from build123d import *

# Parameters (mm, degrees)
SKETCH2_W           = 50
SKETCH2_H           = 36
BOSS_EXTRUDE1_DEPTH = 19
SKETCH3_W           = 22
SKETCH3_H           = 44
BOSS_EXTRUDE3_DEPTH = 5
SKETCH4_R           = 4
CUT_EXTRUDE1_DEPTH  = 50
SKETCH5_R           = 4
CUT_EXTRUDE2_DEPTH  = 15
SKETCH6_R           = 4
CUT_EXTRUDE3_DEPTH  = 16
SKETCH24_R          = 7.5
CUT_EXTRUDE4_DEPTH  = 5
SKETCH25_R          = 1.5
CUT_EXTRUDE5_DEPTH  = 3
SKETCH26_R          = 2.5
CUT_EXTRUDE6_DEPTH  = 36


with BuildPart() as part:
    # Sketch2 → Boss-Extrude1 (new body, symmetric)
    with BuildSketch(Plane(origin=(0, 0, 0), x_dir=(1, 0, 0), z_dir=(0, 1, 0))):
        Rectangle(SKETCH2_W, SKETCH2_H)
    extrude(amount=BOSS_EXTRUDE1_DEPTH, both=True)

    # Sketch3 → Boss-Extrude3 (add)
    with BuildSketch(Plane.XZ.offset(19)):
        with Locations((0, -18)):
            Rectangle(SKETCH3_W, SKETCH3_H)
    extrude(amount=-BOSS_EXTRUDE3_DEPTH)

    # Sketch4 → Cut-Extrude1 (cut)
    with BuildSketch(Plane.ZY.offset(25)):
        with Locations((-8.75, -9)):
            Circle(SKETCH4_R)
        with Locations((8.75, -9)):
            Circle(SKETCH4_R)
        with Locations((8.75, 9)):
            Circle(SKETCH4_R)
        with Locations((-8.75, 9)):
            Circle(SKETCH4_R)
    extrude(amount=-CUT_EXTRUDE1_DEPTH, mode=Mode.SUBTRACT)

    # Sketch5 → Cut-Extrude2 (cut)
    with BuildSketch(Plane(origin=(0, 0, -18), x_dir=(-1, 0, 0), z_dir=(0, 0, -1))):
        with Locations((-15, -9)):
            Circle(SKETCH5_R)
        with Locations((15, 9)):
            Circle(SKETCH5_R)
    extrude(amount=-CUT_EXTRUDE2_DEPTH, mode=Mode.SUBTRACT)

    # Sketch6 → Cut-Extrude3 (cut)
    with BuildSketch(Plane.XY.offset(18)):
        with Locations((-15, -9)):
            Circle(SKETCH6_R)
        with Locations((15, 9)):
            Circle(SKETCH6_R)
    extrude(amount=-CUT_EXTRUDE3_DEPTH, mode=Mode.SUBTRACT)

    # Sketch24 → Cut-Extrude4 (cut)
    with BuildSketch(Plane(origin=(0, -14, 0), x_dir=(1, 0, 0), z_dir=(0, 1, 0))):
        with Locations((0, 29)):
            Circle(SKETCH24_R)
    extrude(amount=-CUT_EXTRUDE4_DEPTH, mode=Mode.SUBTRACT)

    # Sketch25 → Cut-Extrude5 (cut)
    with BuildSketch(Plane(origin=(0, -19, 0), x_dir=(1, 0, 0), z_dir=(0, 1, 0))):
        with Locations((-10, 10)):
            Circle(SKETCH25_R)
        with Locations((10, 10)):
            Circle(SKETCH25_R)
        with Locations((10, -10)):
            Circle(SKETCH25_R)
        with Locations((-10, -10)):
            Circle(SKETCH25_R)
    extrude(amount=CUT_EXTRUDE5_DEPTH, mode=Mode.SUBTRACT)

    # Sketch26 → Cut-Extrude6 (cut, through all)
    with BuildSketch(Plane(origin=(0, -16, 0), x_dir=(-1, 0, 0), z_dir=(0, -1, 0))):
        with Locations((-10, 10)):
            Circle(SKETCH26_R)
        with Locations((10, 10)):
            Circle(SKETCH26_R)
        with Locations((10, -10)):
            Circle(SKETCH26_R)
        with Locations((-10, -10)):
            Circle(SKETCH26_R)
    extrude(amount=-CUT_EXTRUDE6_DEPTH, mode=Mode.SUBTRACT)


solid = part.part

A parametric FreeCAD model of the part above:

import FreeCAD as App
import Part
import Sketcher
from FreeCAD import Vector
Q = App.Units.Quantity


def add_polygon(sketch, points):
    """Adds a closed chain of lines whose ends are joined by coincident constraints."""
    first, n = sketch.GeometryCount, len(points)
    for a, b in zip(points, points[1:] + points[:1]):
        sketch.addGeometry(Part.LineSegment(App.Vector(*a, 0), App.Vector(*b, 0)), False)
    for i in range(n):
        sketch.addConstraint(Sketcher.Constraint("Coincident", first + i, 2, first + (i + 1) % n, 1))

doc = App.newDocument("Part")
body = doc.addObject("PartDesign::Body", "Body")

# Sketch on XZ plane
sketch1 = body.newObject("Sketcher::SketchObject", "Sketch")
sketch1.AttachmentSupport = (doc.getObject("XZ_Plane"), [""])
sketch1.MapMode = "FlatFace"
add_polygon(sketch1, [(-25, -18), (-25, 18), (25, 18), (25, -18)])  # lines 0-3
sketch1.addConstraint([
    Sketcher.Constraint("Vertical", 0),
    Sketcher.Constraint("Horizontal", 1),
    Sketcher.Constraint("Vertical", 2),
    Sketcher.Constraint("Horizontal", 3),
    Sketcher.Constraint("Symmetric", 0, 2, 2, 2, -1, 1),
    Sketcher.Constraint("DistanceX", 1, 1, 1, 2, Q("50 mm")),
    Sketcher.Constraint("DistanceY", 0, 1, 0, 2, Q("36 mm")),
])
pad1 = body.newObject("PartDesign::Pad", "Pad")
pad1.Profile = sketch1
pad1.Length = 38
pad1.Midplane = True

# Sketch on XZ plane
sketch2 = body.newObject("Sketcher::SketchObject", "Sketch001")
sketch2.AttachmentSupport = (doc.getObject("XZ_Plane"), [""])
sketch2.MapMode = "FlatFace"
sketch2.AttachmentOffset = App.Placement(Vector(0, 0, 19), App.Rotation())
add_polygon(sketch2, [(-11, 4), (-11, -40), (11, -40), (11, 4)])  # lines 0-3
sketch2.addConstraint([
    Sketcher.Constraint("Vertical", 0),
    Sketcher.Constraint("Horizontal", 1),
    Sketcher.Constraint("Vertical", 2),
    Sketcher.Constraint("Horizontal", 3),
    Sketcher.Constraint("DistanceX", 1, 1, 1, 2, Q("22 mm")),
    Sketcher.Constraint("DistanceY", 0, 2, 0, 1, Q("44 mm")),
    Sketcher.Constraint("DistanceX", 0, 2, -1, 1, Q("11 mm")),
    Sketcher.Constraint("DistanceY", 0, 2, -1, 1, Q("40 mm")),
])
pad2 = body.newObject("PartDesign::Pad", "Pad001")
pad2.Profile = sketch2
pad2.Length = 5
pad2.Reversed = True

# Sketch on YZ plane
sketch3 = body.newObject("Sketcher::SketchObject", "Sketch002")
sketch3.AttachmentSupport = (doc.getObject("YZ_Plane"), [""])
sketch3.MapMode = "FlatFace"
sketch3.AttachmentOffset = App.Placement(Vector(0, 0, -25), App.Rotation())
sketch3.addGeometry([
    Part.Circle(Vector(-9, -8.8, 0), Vector(0, 0, 1), 4),
    Part.Circle(Vector(-9, 8.8, 0), Vector(0, 0, 1), 4),
    Part.Circle(Vector(9, 8.8, 0), Vector(0, 0, 1), 4),
    Part.Circle(Vector(9, -8.8, 0), Vector(0, 0, 1), 4),
], False)
sketch3.addConstraint([
    Sketcher.Constraint("Equal", 0, 1),
    Sketcher.Constraint("Equal", 1, 2),
    Sketcher.Constraint("Equal", 2, 3),
    Sketcher.Constraint("Symmetric", 0, 3, 2, 3, -1, 1),
    Sketcher.Constraint("Symmetric", 1, 3, 3, 3, -1, 1),
    Sketcher.Constraint("Symmetric", 1, 3, 2, 3, -2),
    Sketcher.Constraint("Diameter", 0, Q("8 mm")),
    Sketcher.Constraint("DistanceX", 0, 3, -1, 1, Q("9 mm")),
    Sketcher.Constraint("DistanceY", 0, 3, 1, 3, Q("17.5 mm")),
])
pocket1 = body.newObject("PartDesign::Pocket", "Pocket")
pocket1.Profile = sketch3
pocket1.Length = 50
pocket1.Reversed = True

# Sketch on XY plane
sketch4 = body.newObject("Sketcher::SketchObject", "Sketch003")
sketch4.AttachmentSupport = (doc.getObject("XY_Plane"), [""])
sketch4.MapMode = "FlatFace"
sketch4.AttachmentOffset = App.Placement(Vector(0, 0, -18), App.Rotation())
sketch4.addGeometry([
    Part.Circle(Vector(15, -9, 0), Vector(0, 0, 1), 4),
    Part.Circle(Vector(-15, 9, 0), Vector(0, 0, 1), 4),
], False)
sketch4.addConstraint([
    Sketcher.Constraint("Equal", 0, 1),
    Sketcher.Constraint("Symmetric", 0, 3, 1, 3, -1, 1),
    Sketcher.Constraint("Diameter", 0, Q("8 mm")),
    Sketcher.Constraint("DistanceX", -1, 1, 0, 3, Q("15 mm")),
    Sketcher.Constraint("DistanceY", 0, 3, -1, 1, Q("9 mm")),
])
pocket2 = body.newObject("PartDesign::Pocket", "Pocket001")
pocket2.Profile = sketch4
pocket2.Length = 15
pocket2.Reversed = True

# Sketch on XY plane
sketch5 = body.newObject("Sketcher::SketchObject", "Sketch004")
sketch5.AttachmentSupport = (doc.getObject("XY_Plane"), [""])
sketch5.MapMode = "FlatFace"
sketch5.AttachmentOffset = App.Placement(Vector(0, 0, 18), App.Rotation())
sketch5.addGeometry([
    Part.Circle(Vector(-15, -9, 0), Vector(0, 0, 1), 4),
    Part.Circle(Vector(15, 9, 0), Vector(0, 0, 1), 4),
], False)
sketch5.addConstraint([
    Sketcher.Constraint("Equal", 0, 1),
    Sketcher.Constraint("Symmetric", 0, 3, 1, 3, -1, 1),
    Sketcher.Constraint("Diameter", 0, Q("8 mm")),
    Sketcher.Constraint("DistanceX", 0, 3, -1, 1, Q("15 mm")),
    Sketcher.Constraint("DistanceY", 0, 3, -1, 1, Q("9 mm")),
])
pocket3 = body.newObject("PartDesign::Pocket", "Pocket002")
pocket3.Profile = sketch5
pocket3.Length = 16

# Sketch on XZ plane
sketch6 = body.newObject("Sketcher::SketchObject", "Sketch005")
sketch6.AttachmentSupport = (doc.getObject("XZ_Plane"), [""])
sketch6.MapMode = "FlatFace"
sketch6.AttachmentOffset = App.Placement(Vector(0, 0, 14), App.Rotation())
sketch6.addGeometry(Part.Circle(Vector(0, -29, 0), Vector(0, 0, 1), 8), False)
sketch6.addConstraint([
    Sketcher.Constraint("PointOnObject", 0, 3, -2),
    Sketcher.Constraint("Diameter", 0, Q("15 mm")),
    Sketcher.Constraint("DistanceY", 0, 3, -1, 1, Q("29 mm")),
])
pocket4 = body.newObject("PartDesign::Pocket", "Pocket003")
pocket4.Profile = sketch6
pocket4.Length = 5
pocket4.Reversed = True

# Sketch on XZ plane
sketch7 = body.newObject("Sketcher::SketchObject", "Sketch006")
sketch7.AttachmentSupport = (doc.getObject("XZ_Plane"), [""])
sketch7.MapMode = "FlatFace"
sketch7.AttachmentOffset = App.Placement(Vector(0, 0, 19), App.Rotation())
sketch7.addGeometry([
    Part.Circle(Vector(-10, -10, 0), Vector(0, 0, 1), 1.5),
    Part.Circle(Vector(10, -10, 0), Vector(0, 0, 1), 1.5),
    Part.Circle(Vector(10, 10, 0), Vector(0, 0, 1), 1.5),
    Part.Circle(Vector(-10, 10, 0), Vector(0, 0, 1), 1.5),
], False)
sketch7.addConstraint([
    Sketcher.Constraint("Equal", 0, 1),
    Sketcher.Constraint("Equal", 1, 2),
    Sketcher.Constraint("Equal", 2, 3),
    Sketcher.Constraint("Symmetric", 0, 3, 2, 3, -1, 1),
    Sketcher.Constraint("Symmetric", 1, 3, 3, 3, -1, 1),
    Sketcher.Constraint("Symmetric", 0, 3, 1, 3, -2),
    Sketcher.Constraint("Diameter", 0, Q("3 mm")),
    Sketcher.Constraint("DistanceX", 0, 3, -1, 1, Q("10 mm")),
    Sketcher.Constraint("DistanceY", 0, 3, -1, 1, Q("10 mm")),
])
pocket5 = body.newObject("PartDesign::Pocket", "Pocket004")
pocket5.Profile = sketch7
pocket5.Length = 3

# Sketch on XZ plane
sketch8 = body.newObject("Sketcher::SketchObject", "Sketch007")
sketch8.AttachmentSupport = (doc.getObject("XZ_Plane"), [""])
sketch8.MapMode = "FlatFace"
sketch8.AttachmentOffset = App.Placement(Vector(0, 0, 16), App.Rotation())
sketch8.addGeometry([
    Part.Circle(Vector(10, -10, 0), Vector(0, 0, 1), 2.5),
    Part.Circle(Vector(-10, -10, 0), Vector(0, 0, 1), 2.5),
    Part.Circle(Vector(-10, 10, 0), Vector(0, 0, 1), 2.5),
    Part.Circle(Vector(10, 10, 0), Vector(0, 0, 1), 2.5),
], False)
sketch8.addConstraint([
    Sketcher.Constraint("Equal", 0, 1),
    Sketcher.Constraint("Equal", 1, 2),
    Sketcher.Constraint("Equal", 2, 3),
    Sketcher.Constraint("Symmetric", 0, 3, 2, 3, -1, 1),
    Sketcher.Constraint("Symmetric", 1, 3, 3, 3, -1, 1),
    Sketcher.Constraint("Symmetric", 0, 3, 1, 3, -2),
    Sketcher.Constraint("Diameter", 0, Q("5 mm")),
    Sketcher.Constraint("DistanceX", -1, 1, 0, 3, Q("10 mm")),
    Sketcher.Constraint("DistanceY", 0, 3, -1, 1, Q("10 mm")),
])
pocket6 = body.newObject("PartDesign::Pocket", "Pocket005")
pocket6.Profile = sketch8
pocket6.Type = "ThroughAll"

doc.recompute()
